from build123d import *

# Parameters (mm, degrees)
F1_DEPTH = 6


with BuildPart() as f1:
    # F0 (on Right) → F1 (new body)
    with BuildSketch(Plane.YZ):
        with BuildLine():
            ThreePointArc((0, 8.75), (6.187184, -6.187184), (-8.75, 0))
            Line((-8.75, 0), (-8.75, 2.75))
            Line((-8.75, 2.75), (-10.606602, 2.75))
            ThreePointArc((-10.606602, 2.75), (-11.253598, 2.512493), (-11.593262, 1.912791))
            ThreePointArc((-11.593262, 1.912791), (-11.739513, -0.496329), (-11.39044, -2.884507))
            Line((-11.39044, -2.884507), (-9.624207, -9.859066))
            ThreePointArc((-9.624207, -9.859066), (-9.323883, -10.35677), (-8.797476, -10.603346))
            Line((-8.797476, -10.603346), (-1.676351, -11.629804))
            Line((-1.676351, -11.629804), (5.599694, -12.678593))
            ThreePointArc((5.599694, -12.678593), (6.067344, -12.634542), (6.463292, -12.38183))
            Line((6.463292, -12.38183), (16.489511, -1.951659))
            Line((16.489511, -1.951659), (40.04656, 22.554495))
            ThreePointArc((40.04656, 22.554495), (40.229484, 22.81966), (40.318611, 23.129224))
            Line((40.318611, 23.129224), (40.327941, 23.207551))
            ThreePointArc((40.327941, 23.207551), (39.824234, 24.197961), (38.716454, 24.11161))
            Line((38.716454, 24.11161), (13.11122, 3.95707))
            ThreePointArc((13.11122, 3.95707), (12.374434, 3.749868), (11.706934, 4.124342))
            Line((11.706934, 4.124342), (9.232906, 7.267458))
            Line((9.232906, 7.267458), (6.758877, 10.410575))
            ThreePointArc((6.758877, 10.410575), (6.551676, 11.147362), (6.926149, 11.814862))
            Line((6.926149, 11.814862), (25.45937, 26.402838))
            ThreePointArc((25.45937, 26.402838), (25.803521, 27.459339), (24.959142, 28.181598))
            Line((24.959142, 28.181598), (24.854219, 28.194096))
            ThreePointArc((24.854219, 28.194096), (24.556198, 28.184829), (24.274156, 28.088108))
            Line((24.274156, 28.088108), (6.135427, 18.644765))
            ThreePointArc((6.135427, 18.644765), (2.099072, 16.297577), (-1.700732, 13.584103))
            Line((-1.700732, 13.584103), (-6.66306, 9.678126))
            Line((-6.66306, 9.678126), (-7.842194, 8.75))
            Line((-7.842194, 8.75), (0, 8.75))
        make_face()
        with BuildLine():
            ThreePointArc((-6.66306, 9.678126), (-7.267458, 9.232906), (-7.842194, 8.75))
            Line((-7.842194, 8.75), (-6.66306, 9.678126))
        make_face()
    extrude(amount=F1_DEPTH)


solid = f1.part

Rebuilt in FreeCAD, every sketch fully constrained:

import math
import FreeCAD as App
import Part
import Sketcher

V = App.Vector
Q = App.Units.Quantity

doc = App.newDocument("Part")
body = doc.addObject("PartDesign::Body", "Body")

# Sketch on YZ plane
sketch1 = body.newObject("Sketcher::SketchObject", "Sketch")
sketch1.AttachmentSupport = (doc.getObject("YZ_Plane"), [""])
sketch1.MapMode = "FlatFace"
sketch1.addGeometry([
    Part.ArcOfCircle(Part.Circle(V(0, 0, 0), V(0, 0, 1), 8.75), math.radians(-179.999999), math.radians(89.999999)),  # 0
    Part.LineSegment(V(-8.75, 0, 0), V(-8.75, 2.75, 0)),  # 1
    Part.LineSegment(V(-8.75, 2.75, 0), V(-10.606602, 2.75, 0)),  # 2
    Part.ArcOfCircle(Part.Circle(V(-10.606602, 1.75, 0), V(0, 0, 1), 1), math.radians(90.000022), math.radians(170.631078)),  # 3
    Part.ArcOfCircle(Part.Circle(V(-0.000019, -0.000002, 0), V(0, 0, 1), 11.749982), math.radians(170.631059), math.radians(194.210804)),  # 4
    Part.LineSegment(V(-11.39044, -2.884507, 0), V(-9.624207, -9.859066, 0)),  # 5
    Part.ArcOfCircle(Part.Circle(V(-8.654807, -9.613574, 0), V(0, 0, 1), 1.000001), math.radians(-165.789127), math.radians(-98.202303)),  # 6
    Part.LineSegment(V(-8.797476, -10.603346, 0), V(-1.676351, -11.629804, 0)),  # 7
    Part.LineSegment(V(-1.676351, -11.629804, 0), V(5.599694, -12.678593, 0)),  # 8
    Part.ArcOfCircle(Part.Circle(V(5.74236, -11.688818, 0), V(0, 0, 1), 1.000004), math.radians(-98.202139), math.radians(-43.868771)),  # 9
    Part.LineSegment(V(6.463292, -12.38183, 0), V(16.489511, -1.951659, 0)),  # 10
    Part.LineSegment(V(16.489511, -1.951659, 0), V(40.04656, 22.554495, 0)),  # 11
    Part.ArcOfCircle(Part.Circle(V(39.325639, 23.2475, 0), V(0, 0, 1), 0.999991), math.radians(-43.868911), math.radians(-6.792651)),  # 12
    Part.LineSegment(V(40.318611, 23.129224, 0), V(40.327941, 23.207551, 0)),  # 13
    Part.ArcOfCircle(Part.Circle(V(39.334961, 23.325831, 0), V(0, 0, 1), 1), math.radians(-6.79282), math.radians(128.20717)),  # 14
    Part.LineSegment(V(38.716454, 24.11161, 0), V(13.11122, 3.95707, 0)),  # 15
    Part.ArcOfCircle(Part.Circle(V(12.492713, 4.742846, 0), V(0, 0, 1), 0.999998), math.radians(-141.792914), math.radians(-51.792687)),  # 16
    Part.LineSegment(V(11.706934, 4.124342, 0), V(9.232906, 7.267458, 0)),  # 17
    Part.LineSegment(V(9.232906, 7.267458, 0), V(6.758877, 10.410575, 0)),  # 18
    Part.ArcOfCircle(Part.Circle(V(7.544658, 11.029082, 0), V(0, 0, 1), 1.000001), math.radians(128.207249), math.radians(218.20716)),  # 19
    Part.LineSegment(V(6.926149, 11.814862, 0), V(25.45937, 26.402838, 0)),  # 20
    Part.ArcOfCircle(Part.Circle(V(24.840863, 27.188618, 0), V(0, 0, 1), 1), math.radians(-51.79283), math.radians(83.207225)),  # 21
    Part.LineSegment(V(24.959142, 28.181598, 0), V(24.854219, 28.194096, 0)),  # 22
    Part.ArcOfCircle(Part.Circle(V(24.735942, 27.201107, 0), V(0, 0, 1), 1.000008), math.radians(83.207354), math.radians(117.502145)),  # 23
    Part.LineSegment(V(24.274156, 28.088108, 0), V(6.135427, 18.644765, 0)),  # 24
    Part.ArcOfCircle(Part.Circle(V(29.224588, -25.704805, 0), V(0, 0, 1), 49.999937), math.radians(117.502273), math.radians(128.207203)),  # 25
    Part.LineSegment(V(-1.700732, 13.584103, 0), V(-6.66306, 9.678126, 0)),  # 26
    Part.ArcOfCircle(Part.Circle(V(-0.000003, -0.000005, 0), V(0, 0, 1), 11.750002), math.radians(124.546063), math.radians(131.868282)),  # 27
    Part.LineSegment(V(-7.842194, 8.75, 0), V(0, 8.75, 0)),  # 28
], False)
sketch1.addConstraint([
    Sketcher.Constraint("Coincident", 0, 1, 1, 1),
    Sketcher.Constraint("Coincident", 1, 2, 2, 1),
    Sketcher.Constraint("Coincident", 2, 2, 3, 1),
    Sketcher.Constraint("Coincident", 3, 2, 4, 1),
    Sketcher.Constraint("Coincident", 4, 2, 5, 1),
    Sketcher.Constraint("Coincident", 5, 2, 6, 1),
    Sketcher.Constraint("Coincident", 6, 2, 7, 1),
    Sketcher.Constraint("Coincident", 7, 2, 8, 1),
    Sketcher.Constraint("Coincident", 8, 2, 9, 1),
    Sketcher.Constraint("Coincident", 9, 2, 10, 1),
    Sketcher.Constraint("Coincident", 10, 2, 11, 1),
    Sketcher.Constraint("Coincident", 11, 2, 12, 1),
    Sketcher.Constraint("Coincident", 12, 2, 13, 1),
    Sketcher.Constraint("Coincident", 13, 2, 14, 1),
    Sketcher.Constraint("Coincident", 14, 2, 15, 1),
    Sketcher.Constraint("Coincident", 15, 2, 16, 2),
    Sketcher.Constraint("Coincident", 16, 1, 17, 1),
    Sketcher.Constraint("Coincident", 17, 2, 18, 1),
    Sketcher.Constraint("Coincident", 18, 2, 19, 2),
    Sketcher.Constraint("Coincident", 19, 1, 20, 1),
    Sketcher.Constraint("Coincident", 20, 2, 21, 1),
    Sketcher.Constraint("Coincident", 21, 2, 22, 1),
    Sketcher.Constraint("Coincident", 22, 2, 23, 1),
    Sketcher.Constraint("Coincident", 23, 2, 24, 1),
    Sketcher.Constraint("Coincident", 24, 2, 25, 1),
    Sketcher.Constraint("Coincident", 25, 2, 26, 1),
    Sketcher.Constraint("Coincident", 26, 2, 27, 1),
    Sketcher.Constraint("Coincident", 27, 2, 28, 1),
    Sketcher.Constraint("Coincident", 28, 2, 0, 2),
    Sketcher.Constraint("Vertical", 1),
    Sketcher.Constraint("Horizontal", 2),
    Sketcher.Constraint("Horizontal", 28),
    Sketcher.Constraint("Coincident", 0, 3, -1, 1),
    Sketcher.Constraint("Coincident", 27, 3, -1, 1),
    Sketcher.Constraint("PointOnObject", 4, 3, -1),
    Sketcher.Constraint("PointOnObject", 0, 1, -1),
    Sketcher.Constraint("PointOnObject", 28, 2, -2),
    Sketcher.Constraint("Radius", 3, Q("1 mm")),
    Sketcher.Constraint("Radius", 6, Q("1.000001 mm")),
    Sketcher.Constraint("Radius", 14, Q("1 mm")),
    Sketcher.Constraint("Radius", 19, Q("1.000001 mm")),
    Sketcher.Constraint("Radius", 21, Q("1 mm")),
    Sketcher.Constraint("Radius", 0, Q("8.75 mm")),
    Sketcher.Constraint("Radius", 27, Q("11.750002 mm")),
    Sketcher.Constraint("Distance", 17, Q("3.999999 mm")),
    Sketcher.Constraint("Distance", 18, Q("4 mm")),
    Sketcher.Constraint("DistanceY", 1, 2, 27, 2, Q("6 mm")),
    Sketcher.Constraint("Radius", 4, Q("11.749982 mm")),
    Sketcher.Constraint("Radius", 12, Q("0.999991 mm")),
    Sketcher.Constraint("Radius", 23, Q("1.000008 mm")),
    Sketcher.Constraint("Radius", 9, Q("1.000004 mm")),
    Sketcher.Constraint("Radius", 16, Q("0.999998 mm")),
    Sketcher.Constraint("Radius", 25, Q("49.999937 mm")),
    Sketcher.Constraint("DistanceY", 10, 2, 16, 1, Q("6.076001 mm")),
    Sketcher.Constraint("DistanceY", 23, 3, 23, 2, Q("0.887001 mm")),
    Sketcher.Constraint("Distance", 24, Q("20.4497 mm")),
    Sketcher.Constraint("DistanceX", 3, 3, -1, 1, Q("10.606602 mm")),
    Sketcher.Constraint("DistanceY", -1, 1, 12, 3, Q("23.2475 mm")),
    Sketcher.Constraint("DistanceY", -1, 1, 21, 2, Q("28.181598 mm")),
    Sketcher.Constraint("DistanceX", 9, 3, 14, 3, Q("33.5926 mm")),
    Sketcher.Constraint("DistanceY", 9, 3, 19, 3, Q("22.717901 mm")),
    Sketcher.Constraint("DistanceX", 2, 2, 27, 3, Q("10.606599 mm")),
    Sketcher.Constraint("DistanceX", 5, 2, 6, 3, Q("0.9694 mm")),
    Sketcher.Constraint("DistanceY", 7, 2, 27, 3, Q("11.629799 mm")),
    Sketcher.Constraint("DistanceX", 8, 2, 9, 2, Q("0.863598 mm")),
    Sketcher.Constraint("DistanceX", 16, 3, 10, 2, Q("3.996798 mm")),
    Sketcher.Constraint("DistanceX", 14, 3, 11, 2, Q("0.711599 mm")),
    Sketcher.Constraint("DistanceX", 12, 3, 13, 2, Q("1.002302 mm")),
    Sketcher.Constraint("DistanceX", 23, 3, 21, 2, Q("0.2232 mm")),
    Sketcher.Constraint("DistanceX", 3, 2, 26, 2, Q("4.930202 mm")),
    Sketcher.Constraint("Distance", 13, Q("0.078881 mm")),
    Sketcher.Constraint("Distance", 26, Q("6.315169 mm")),
    Sketcher.Constraint("DistanceX", -1, 1, 9, 3, Q("5.74236 mm")),
    Sketcher.Constraint("DistanceY", 9, 3, -1, 1, Q("11.688818 mm")),
    Sketcher.Constraint("DistanceX", -1, 1, 12, 3, Q("39.325639 mm")),
    Sketcher.Constraint("DistanceY", -1, 1, 14, 3, Q("23.325831 mm")),
    Sketcher.Constraint("DistanceX", -1, 1, 23, 3, Q("24.735942 mm")),
    Sketcher.Constraint("DistanceX", -1, 1, 25, 3, Q("29.224588 mm")),
    Sketcher.Constraint("DistanceX", 3, 2, -1, 1, Q("11.593262 mm")),
    Sketcher.Constraint("DistanceX", 4, 2, -1, 1, Q("11.39044 mm")),
    Sketcher.Constraint("DistanceX", 7, 2, -1, 1, Q("1.676351 mm")),
    Sketcher.Constraint("DistanceY", 9, 2, -1, 1, Q("12.38183 mm")),
    Sketcher.Constraint("DistanceX", -1, 1, 10, 2, Q("16.489511 mm")),
    Sketcher.Constraint("DistanceY", 10, 2, -1, 1, Q("1.951659 mm")),
    Sketcher.Constraint("DistanceY", -1, 1, 14, 2, Q("24.11161 mm")),
    Sketcher.Constraint("DistanceX", -1, 1, 15, 2, Q("13.11122 mm")),
    Sketcher.Constraint("DistanceY", -1, 1, 15, 2, Q("3.95707 mm")),
    Sketcher.Constraint("DistanceY", -1, 1, 17, 2, Q("7.267458 mm")),
    Sketcher.Constraint("DistanceX", -1, 1, 19, 1, Q("6.926149 mm")),
    Sketcher.Constraint("DistanceX", -1, 1, 20, 2, Q("25.45937 mm")),
    Sketcher.Constraint("DistanceX", -1, 1, 22, 2, Q("24.854219 mm")),
    Sketcher.Constraint("DistanceX", 25, 2, -1, 1, Q("1.700732 mm")),
    Sketcher.Constraint("DistanceX", 6, 3, 4, 3, Q("8.654788 mm")),
    Sketcher.Constraint("DistanceY", 6, 3, 16, 3, Q("14.356421 mm")),
    Sketcher.Constraint("DistanceX", 3, 3, 19, 3, Q("18.151259 mm")),
    Sketcher.Constraint("DistanceX", 16, 3, 21, 3, Q("12.348151 mm")),
    Sketcher.Constraint("DistanceY", 21, 3, 23, 3, Q("0.01249 mm")),
    Sketcher.Constraint("DistanceX", 6, 2, 6, 3, Q("0.142669 mm")),
])
pad1 = body.newObject("PartDesign::Pad", "Pad")
pad1.Profile = sketch1
pad1.Length = 6

doc.recompute()
